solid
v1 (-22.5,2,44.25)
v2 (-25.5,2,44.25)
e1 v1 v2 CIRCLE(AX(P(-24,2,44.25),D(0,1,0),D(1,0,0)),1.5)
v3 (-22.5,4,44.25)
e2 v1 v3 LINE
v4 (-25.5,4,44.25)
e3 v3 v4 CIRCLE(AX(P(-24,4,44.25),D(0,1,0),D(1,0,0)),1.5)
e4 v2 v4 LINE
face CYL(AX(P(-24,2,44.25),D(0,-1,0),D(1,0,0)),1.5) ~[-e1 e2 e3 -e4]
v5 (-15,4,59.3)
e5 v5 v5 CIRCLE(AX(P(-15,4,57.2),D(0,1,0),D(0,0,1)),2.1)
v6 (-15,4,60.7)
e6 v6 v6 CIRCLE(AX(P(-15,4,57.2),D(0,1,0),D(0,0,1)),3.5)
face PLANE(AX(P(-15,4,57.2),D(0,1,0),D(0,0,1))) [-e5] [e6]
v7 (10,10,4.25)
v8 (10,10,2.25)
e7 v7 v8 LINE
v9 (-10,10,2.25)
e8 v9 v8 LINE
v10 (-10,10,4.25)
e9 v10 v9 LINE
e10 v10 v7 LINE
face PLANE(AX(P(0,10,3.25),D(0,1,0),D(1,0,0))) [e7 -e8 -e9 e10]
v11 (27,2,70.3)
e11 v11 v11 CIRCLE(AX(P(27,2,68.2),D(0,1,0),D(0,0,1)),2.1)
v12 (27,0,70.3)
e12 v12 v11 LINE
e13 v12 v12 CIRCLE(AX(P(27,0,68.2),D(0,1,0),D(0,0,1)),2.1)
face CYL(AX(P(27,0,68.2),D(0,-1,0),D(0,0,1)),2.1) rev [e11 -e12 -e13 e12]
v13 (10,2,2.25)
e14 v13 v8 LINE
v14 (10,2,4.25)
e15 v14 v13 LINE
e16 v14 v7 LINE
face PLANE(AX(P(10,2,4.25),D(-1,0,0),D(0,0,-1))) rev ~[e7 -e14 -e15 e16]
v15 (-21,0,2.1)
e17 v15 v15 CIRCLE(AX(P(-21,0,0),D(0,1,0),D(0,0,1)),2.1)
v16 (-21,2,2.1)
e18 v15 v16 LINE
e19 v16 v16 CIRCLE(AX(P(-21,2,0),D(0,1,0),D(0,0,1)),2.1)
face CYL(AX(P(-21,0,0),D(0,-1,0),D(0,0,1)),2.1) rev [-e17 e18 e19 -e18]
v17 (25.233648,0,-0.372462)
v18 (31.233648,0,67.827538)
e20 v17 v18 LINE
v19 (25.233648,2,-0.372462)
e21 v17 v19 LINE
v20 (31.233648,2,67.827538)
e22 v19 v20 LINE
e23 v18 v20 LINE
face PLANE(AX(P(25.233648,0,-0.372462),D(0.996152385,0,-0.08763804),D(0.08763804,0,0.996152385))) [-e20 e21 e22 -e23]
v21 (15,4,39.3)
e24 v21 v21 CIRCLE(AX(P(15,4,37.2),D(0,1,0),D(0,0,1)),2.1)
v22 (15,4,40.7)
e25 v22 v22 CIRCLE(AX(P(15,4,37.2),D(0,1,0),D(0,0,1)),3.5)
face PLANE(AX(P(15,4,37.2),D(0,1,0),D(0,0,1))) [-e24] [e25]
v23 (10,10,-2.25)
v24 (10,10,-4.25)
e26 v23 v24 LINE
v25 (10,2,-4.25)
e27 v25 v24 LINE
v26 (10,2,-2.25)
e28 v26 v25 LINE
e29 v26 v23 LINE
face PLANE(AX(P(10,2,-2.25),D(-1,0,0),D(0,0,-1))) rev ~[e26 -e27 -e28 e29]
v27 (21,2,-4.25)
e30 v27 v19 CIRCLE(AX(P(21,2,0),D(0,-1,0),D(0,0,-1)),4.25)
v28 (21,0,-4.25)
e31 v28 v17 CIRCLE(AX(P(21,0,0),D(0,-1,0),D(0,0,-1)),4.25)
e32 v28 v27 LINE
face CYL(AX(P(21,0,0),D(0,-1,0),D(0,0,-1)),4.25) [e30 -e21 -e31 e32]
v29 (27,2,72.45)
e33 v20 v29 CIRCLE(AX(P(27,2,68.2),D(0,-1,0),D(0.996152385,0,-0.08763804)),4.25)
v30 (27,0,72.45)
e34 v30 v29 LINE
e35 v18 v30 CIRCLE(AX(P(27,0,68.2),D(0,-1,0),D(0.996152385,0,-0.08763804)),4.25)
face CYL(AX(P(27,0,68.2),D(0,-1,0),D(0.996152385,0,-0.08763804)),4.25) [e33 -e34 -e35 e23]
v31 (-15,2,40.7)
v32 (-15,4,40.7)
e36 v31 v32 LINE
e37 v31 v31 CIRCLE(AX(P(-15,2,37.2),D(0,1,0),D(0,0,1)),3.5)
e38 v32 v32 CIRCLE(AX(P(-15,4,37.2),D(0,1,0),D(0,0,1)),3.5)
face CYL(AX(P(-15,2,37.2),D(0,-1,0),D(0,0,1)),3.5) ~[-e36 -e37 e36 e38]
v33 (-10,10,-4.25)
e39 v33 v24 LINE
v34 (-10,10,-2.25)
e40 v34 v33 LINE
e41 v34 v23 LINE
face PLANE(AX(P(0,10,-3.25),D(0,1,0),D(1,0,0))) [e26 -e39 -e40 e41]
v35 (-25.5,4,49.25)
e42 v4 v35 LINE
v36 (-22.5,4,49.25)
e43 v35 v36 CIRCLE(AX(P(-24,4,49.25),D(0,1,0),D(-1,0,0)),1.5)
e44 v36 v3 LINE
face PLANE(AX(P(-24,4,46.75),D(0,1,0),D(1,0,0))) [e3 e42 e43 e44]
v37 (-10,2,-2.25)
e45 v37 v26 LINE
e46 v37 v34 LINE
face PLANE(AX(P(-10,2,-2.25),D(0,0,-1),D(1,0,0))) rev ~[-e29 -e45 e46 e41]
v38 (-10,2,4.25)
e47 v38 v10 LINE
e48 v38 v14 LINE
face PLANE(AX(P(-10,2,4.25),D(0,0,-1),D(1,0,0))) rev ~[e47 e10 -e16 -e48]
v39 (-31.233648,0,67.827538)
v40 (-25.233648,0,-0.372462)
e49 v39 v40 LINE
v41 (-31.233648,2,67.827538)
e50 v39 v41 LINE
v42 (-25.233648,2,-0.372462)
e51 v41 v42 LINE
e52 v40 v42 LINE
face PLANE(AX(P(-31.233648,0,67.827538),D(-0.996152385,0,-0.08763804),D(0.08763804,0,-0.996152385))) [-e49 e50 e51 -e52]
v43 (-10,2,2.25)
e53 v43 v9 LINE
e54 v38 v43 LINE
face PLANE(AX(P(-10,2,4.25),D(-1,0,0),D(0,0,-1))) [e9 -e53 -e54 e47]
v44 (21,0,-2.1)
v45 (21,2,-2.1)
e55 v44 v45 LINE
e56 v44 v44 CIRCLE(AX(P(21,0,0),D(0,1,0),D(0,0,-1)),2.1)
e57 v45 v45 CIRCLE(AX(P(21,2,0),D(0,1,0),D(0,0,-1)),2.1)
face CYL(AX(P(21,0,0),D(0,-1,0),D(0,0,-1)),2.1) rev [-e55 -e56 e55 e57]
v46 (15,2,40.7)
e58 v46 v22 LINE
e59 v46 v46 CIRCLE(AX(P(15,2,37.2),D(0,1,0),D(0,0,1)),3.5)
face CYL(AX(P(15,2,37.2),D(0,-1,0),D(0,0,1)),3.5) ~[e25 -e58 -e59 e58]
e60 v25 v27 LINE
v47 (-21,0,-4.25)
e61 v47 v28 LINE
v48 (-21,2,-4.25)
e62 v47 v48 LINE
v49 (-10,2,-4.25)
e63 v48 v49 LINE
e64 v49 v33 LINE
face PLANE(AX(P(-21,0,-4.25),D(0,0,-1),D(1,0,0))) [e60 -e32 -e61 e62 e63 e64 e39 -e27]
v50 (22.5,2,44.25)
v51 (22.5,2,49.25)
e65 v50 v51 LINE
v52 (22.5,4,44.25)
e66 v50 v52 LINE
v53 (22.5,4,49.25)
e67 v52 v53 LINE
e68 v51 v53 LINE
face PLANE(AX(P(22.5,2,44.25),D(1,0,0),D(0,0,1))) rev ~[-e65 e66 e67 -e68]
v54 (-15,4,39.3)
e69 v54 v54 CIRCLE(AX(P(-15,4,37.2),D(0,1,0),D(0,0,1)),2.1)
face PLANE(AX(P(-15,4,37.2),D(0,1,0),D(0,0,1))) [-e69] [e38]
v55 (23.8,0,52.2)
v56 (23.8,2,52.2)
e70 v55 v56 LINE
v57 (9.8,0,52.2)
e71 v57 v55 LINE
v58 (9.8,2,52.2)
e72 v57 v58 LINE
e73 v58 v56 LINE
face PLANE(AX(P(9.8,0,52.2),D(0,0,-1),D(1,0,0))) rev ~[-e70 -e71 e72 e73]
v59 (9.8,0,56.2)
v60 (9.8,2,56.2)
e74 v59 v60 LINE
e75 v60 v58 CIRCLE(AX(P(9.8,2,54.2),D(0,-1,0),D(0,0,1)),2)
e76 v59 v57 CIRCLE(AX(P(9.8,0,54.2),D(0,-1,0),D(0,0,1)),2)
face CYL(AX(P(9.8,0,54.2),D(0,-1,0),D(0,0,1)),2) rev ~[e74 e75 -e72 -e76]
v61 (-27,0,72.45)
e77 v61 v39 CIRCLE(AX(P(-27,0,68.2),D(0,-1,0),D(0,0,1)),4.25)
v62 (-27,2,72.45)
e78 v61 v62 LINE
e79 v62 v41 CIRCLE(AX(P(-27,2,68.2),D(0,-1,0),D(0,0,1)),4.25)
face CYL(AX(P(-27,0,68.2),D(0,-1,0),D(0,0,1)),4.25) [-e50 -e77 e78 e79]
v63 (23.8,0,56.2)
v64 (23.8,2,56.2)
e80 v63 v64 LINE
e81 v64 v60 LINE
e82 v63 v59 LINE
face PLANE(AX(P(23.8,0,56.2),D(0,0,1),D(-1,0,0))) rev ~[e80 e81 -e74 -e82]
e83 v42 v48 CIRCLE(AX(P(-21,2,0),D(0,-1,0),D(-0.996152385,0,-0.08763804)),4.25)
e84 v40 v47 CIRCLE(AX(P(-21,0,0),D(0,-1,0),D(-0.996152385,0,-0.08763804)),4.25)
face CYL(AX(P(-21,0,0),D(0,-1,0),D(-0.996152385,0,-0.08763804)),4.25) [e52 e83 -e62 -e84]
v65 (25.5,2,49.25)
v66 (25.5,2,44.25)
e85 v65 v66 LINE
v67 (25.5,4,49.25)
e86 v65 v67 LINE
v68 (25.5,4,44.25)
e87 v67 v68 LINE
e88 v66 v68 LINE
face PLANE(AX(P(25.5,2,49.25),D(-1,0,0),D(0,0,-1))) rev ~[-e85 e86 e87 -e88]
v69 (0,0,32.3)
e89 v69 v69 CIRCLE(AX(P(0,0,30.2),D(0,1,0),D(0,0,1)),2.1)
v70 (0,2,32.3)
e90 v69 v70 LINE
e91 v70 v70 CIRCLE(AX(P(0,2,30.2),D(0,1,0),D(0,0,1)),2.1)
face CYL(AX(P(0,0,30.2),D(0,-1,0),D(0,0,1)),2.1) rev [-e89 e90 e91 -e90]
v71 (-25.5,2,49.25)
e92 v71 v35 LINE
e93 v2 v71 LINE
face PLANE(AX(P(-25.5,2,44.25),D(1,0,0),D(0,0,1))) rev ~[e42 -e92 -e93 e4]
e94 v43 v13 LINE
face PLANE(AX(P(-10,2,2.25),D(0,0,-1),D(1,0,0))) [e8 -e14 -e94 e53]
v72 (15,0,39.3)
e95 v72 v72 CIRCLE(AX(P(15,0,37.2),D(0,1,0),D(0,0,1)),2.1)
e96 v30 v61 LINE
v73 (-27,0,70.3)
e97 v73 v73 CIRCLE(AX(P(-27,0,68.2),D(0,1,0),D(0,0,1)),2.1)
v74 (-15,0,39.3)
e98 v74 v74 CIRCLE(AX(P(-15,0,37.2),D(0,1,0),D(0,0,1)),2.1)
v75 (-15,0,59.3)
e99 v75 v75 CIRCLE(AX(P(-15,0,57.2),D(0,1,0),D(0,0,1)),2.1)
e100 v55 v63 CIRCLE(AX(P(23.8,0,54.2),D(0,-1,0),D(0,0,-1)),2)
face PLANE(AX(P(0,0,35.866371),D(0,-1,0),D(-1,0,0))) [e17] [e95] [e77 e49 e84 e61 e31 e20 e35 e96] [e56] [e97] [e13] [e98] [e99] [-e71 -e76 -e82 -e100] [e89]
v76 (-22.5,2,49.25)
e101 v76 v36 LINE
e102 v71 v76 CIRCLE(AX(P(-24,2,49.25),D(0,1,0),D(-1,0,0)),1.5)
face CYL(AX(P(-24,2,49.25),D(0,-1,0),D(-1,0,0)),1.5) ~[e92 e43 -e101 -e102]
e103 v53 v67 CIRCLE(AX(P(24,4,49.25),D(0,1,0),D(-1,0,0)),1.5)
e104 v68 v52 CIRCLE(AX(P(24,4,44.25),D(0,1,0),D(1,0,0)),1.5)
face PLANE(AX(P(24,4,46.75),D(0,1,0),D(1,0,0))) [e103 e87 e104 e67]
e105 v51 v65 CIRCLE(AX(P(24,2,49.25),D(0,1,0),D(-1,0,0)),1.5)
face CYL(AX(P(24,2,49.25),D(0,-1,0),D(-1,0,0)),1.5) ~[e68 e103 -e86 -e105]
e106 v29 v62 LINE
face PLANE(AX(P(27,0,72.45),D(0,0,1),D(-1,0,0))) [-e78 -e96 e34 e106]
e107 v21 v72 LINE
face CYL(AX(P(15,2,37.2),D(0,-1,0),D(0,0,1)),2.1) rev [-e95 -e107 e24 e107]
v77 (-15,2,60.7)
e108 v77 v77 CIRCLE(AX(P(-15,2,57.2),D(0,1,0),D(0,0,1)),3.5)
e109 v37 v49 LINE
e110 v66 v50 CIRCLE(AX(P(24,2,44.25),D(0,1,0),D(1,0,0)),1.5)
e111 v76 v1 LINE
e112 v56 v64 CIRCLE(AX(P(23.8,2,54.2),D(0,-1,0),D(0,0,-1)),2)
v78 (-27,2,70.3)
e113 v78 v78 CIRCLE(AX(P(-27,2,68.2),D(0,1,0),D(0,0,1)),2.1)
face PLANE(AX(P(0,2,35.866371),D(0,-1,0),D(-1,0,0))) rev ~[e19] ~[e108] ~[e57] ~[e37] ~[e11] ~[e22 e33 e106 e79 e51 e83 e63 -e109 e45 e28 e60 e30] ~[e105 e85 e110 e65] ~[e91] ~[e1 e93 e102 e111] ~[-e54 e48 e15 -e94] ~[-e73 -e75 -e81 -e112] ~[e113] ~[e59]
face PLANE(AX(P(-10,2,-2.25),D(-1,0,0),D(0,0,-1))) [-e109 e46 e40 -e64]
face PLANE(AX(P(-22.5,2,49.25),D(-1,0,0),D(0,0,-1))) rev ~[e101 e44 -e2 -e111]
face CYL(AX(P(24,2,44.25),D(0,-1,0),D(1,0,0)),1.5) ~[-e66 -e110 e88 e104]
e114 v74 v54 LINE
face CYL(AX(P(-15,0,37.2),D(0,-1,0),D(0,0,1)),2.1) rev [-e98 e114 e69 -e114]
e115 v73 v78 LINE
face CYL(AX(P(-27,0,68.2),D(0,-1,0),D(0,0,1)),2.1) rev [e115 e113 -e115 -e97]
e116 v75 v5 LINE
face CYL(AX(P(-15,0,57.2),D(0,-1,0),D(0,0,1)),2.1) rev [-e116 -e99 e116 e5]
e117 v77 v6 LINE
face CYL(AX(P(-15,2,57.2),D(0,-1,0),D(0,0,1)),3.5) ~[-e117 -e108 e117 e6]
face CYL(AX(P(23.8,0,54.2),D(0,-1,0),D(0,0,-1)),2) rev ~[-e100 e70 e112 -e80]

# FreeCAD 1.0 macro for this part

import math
import FreeCAD as App
import Part
import Sketcher

V = App.Vector
Q = App.Units.Quantity

doc = App.newDocument("Part")
body = doc.addObject("PartDesign::Body", "Body")

# Sketch on XZ plane
sketch1 = body.newObject("Sketcher::SketchObject", "Sketch")
sketch1.AttachmentSupport = (doc.getObject("XZ_Plane"), [""])
sketch1.MapMode = "FlatFace"
sketch1.addGeometry(Part.LineSegment(V(21, -4.25, 0), V(-21, -4.25, 0)), False)
sketch1.addGeometry(Part.ArcOfCircle(Part.Circle(V(-21, 0, 0), V(0, 0, 1), 4.25), math.radians(-174.97226), math.radians(-90)), False)
sketch1.addGeometry(Part.LineSegment(V(-25.233648, -0.372462, 0), V(-31.233648, 67.827538, 0)), False)
sketch1.addGeometry(Part.ArcOfCircle(Part.Circle(V(-27, 68.2, 0), V(0, 0, 1), 4.25), math.radians(90), math.radians(185.02774)), False)
sketch1.addGeometry(Part.LineSegment(V(-27, 72.45, 0), V(27, 72.45, 0)), False)
sketch1.addGeometry(Part.ArcOfCircle(Part.Circle(V(27, 68.2, 0), V(0, 0, 1), 4.25), math.radians(-5.02774), math.radians(90)), False)
sketch1.addGeometry(Part.LineSegment(V(31.233648, 67.827538, 0), V(25.233648, -0.372462, 0)), False)
sketch1.addGeometry(Part.ArcOfCircle(Part.Circle(V(21, 0, 0), V(0, 0, 1), 4.25), math.radians(-90), math.radians(-5.02774)), False)
sketch1.addGeometry(Part.Circle(V(27, 68.2, 0), V(0, 0, 1), 2.1), False)
sketch1.addGeometry(Part.LineSegment(V(9.8, 52.2, 0), V(23.8, 52.2, 0)), False)
sketch1.addGeometry(Part.ArcOfCircle(Part.Circle(V(23.8, 54.2, 0), V(0, 0, 1), 2), math.radians(-90), math.radians(90)), False)
sketch1.addGeometry(Part.LineSegment(V(23.8, 56.2, 0), V(9.8, 56.2, 0)), False)
sketch1.addGeometry(Part.ArcOfCircle(Part.Circle(V(9.8, 54.2, 0), V(0, 0, 1), 2), math.radians(90), math.radians(270)), False)
sketch1.addGeometry(Part.Circle(V(15, 37.2, 0), V(0, 0, 1), 2.1), False)
sketch1.addGeometry(Part.Circle(V(-27, 68.2, 0), V(0, 0, 1), 2.1), False)
sketch1.addGeometry(Part.Circle(V(-15, 57.2, 0), V(0, 0, 1), 2.1), False)
sketch1.addGeometry(Part.Circle(V(-15, 37.2, 0), V(0, 0, 1), 2.1), False)
sketch1.addGeometry(Part.Circle(V(21, 0, 0), V(0, 0, 1), 2.1), False)
sketch1.addGeometry(Part.Circle(V(0, 30.2, 0), V(0, 0, 1), 2.1), False)
sketch1.addGeometry(Part.Circle(V(-21, 0, 0), V(0, 0, 1), 2.1), False)
sketch1.addConstraint(Sketcher.Constraint("Tangent", 0, 2, 1, 2))
sketch1.addConstraint(Sketcher.Constraint("Tangent", 1, 1, 2, 1))
sketch1.addConstraint(Sketcher.Constraint("Tangent", 2, 2, 3, 2))
sketch1.addConstraint(Sketcher.Constraint("Tangent", 3, 1, 4, 1))
sketch1.addConstraint(Sketcher.Constraint("Tangent", 4, 2, 5, 2))
sketch1.addConstraint(Sketcher.Constraint("Tangent", 5, 1, 6, 1))
sketch1.addConstraint(Sketcher.Constraint("Tangent", 6, 2, 7, 2))
sketch1.addConstraint(Sketcher.Constraint("Tangent", 7, 1, 0, 1))
sketch1.addConstraint(Sketcher.Constraint("Tangent", 9, 2, 10, 1))
sketch1.addConstraint(Sketcher.Constraint("Tangent", 10, 2, 11, 1))
sketch1.addConstraint(Sketcher.Constraint("Tangent", 11, 2, 12, 1))
sketch1.addConstraint(Sketcher.Constraint("Tangent", 12, 2, 9, 1))
sketch1.addConstraint(Sketcher.Constraint("Horizontal", 0))
sketch1.addConstraint(Sketcher.Constraint("Horizontal", 4))
sketch1.addConstraint(Sketcher.Constraint("Horizontal", 9))
sketch1.addConstraint(Sketcher.Constraint("Horizontal", 11))
sketch1.addConstraint(Sketcher.Constraint("Coincident", 8, 3, 5, 3))
sketch1.addConstraint(Sketcher.Constraint("Coincident", 14, 3, 3, 3))
sketch1.addConstraint(Sketcher.Constraint("Coincident", 17, 3, 7, 3))
sketch1.addConstraint(Sketcher.Constraint("Coincident", 19, 3, 1, 3))
sketch1.addConstraint(Sketcher.Constraint("Equal", 1, 3))
sketch1.addConstraint(Sketcher.Constraint("Equal", 3, 5))
sketch1.addConstraint(Sketcher.Constraint("Equal", 5, 7))
sketch1.addConstraint(Sketcher.Constraint("Equal", 8, 13))
sketch1.addConstraint(Sketcher.Constraint("Equal", 13, 14))
sketch1.addConstraint(Sketcher.Constraint("Equal", 14, 15))
sketch1.addConstraint(Sketcher.Constraint("Equal", 15, 16))
sketch1.addConstraint(Sketcher.Constraint("Equal", 16, 17))
sketch1.addConstraint(Sketcher.Constraint("Equal", 17, 18))
sketch1.addConstraint(Sketcher.Constraint("Equal", 18, 19))
sketch1.addConstraint(Sketcher.Constraint("Symmetric", 1, 3, 7, 3, -1, 1))
sketch1.addConstraint(Sketcher.Constraint("Symmetric", 13, 3, 16, 3, -2))
sketch1.addConstraint(Sketcher.Constraint("PointOnObject", 18, 3, -2))
sketch1.addConstraint(Sketcher.Constraint("Horizontal", 2, 2, 5, 1))
sketch1.addConstraint(Sketcher.Constraint("Vertical", 15, 3, 16, 3))
sketch1.addConstraint(Sketcher.Constraint("Radius", 10, Q("2 mm")))
sketch1.addConstraint(Sketcher.Constraint("Diameter", 8, Q("4.2 mm")))
sketch1.addConstraint(Sketcher.Constraint("DistanceX", 0, 2, 0, 1, Q("42 mm")))
sketch1.addConstraint(Sketcher.Constraint("DistanceX", 4, 1, 4, 2, Q("54 mm")))
sketch1.addConstraint(Sketcher.Constraint("DistanceX", 9, 1, 9, 2, Q("14 mm")))
sketch1.addConstraint(Sketcher.Constraint("Radius", 1, Q("4.25 mm")))
sketch1.addConstraint(Sketcher.Constraint("DistanceX", -1, 1, 13, 3, Q("15 mm")))
sketch1.addConstraint(Sketcher.Constraint("DistanceY", 10, 3, 5, 3, Q("14 mm")))
sketch1.addConstraint(Sketcher.Constraint("DistanceY", 13, 3, 12, 3, Q("17 mm")))
sketch1.addConstraint(Sketcher.Constraint("DistanceY", 15, 3, 3, 3, Q("11 mm")))
sketch1.addConstraint(Sketcher.Constraint("DistanceY", 18, 3, 13, 3, Q("7 mm")))
sketch1.addConstraint(Sketcher.Constraint("DistanceY", -1, 1, 3, 3, Q("68.2 mm")))
sketch1.addConstraint(Sketcher.Constraint("DistanceX", -1, 1, 10, 3, Q("23.8 mm")))
pad1 = body.newObject("PartDesign::Pad", "Pad")
pad1.Profile = sketch1
pad1.Length = 2
pad1.Reversed = True

# Sketch on XZ plane
sketch2 = body.newObject("Sketcher::SketchObject", "Sketch001")
sketch2.AttachmentSupport = (doc.getObject("XZ_Plane"), [""])
sketch2.MapMode = "FlatFace"
sketch2.AttachmentOffset = App.Placement(V(0, 0, -2), App.Rotation())
sketch2.addGeometry(Part.LineSegment(V(-10, 2.25, 0), V(-10, 4.25, 0)), False)
sketch2.addGeometry(Part.LineSegment(V(-10, 4.25, 0), V(10, 4.25, 0)), False)
sketch2.addGeometry(Part.LineSegment(V(10, 4.25, 0), V(10, 2.25, 0)), False)
sketch2.addGeometry(Part.LineSegment(V(10, 2.25, 0), V(-10, 2.25, 0)), False)
sketch2.addGeometry(Part.LineSegment(V(-10, -4.25, 0), V(-10, -2.25, 0)), False)
sketch2.addGeometry(Part.LineSegment(V(-10, -2.25, 0), V(10, -2.25, 0)), False)
sketch2.addGeometry(Part.LineSegment(V(10, -2.25, 0), V(10, -4.25, 0)), False)
sketch2.addGeometry(Part.LineSegment(V(10, -4.25, 0), V(-10, -4.25, 0)), False)
sketch2.addConstraint(Sketcher.Constraint("Coincident", 0, 2, 1, 1))
sketch2.addConstraint(Sketcher.Constraint("Coincident", 1, 2, 2, 1))
sketch2.addConstraint(Sketcher.Constraint("Coincident", 2, 2, 3, 1))
sketch2.addConstraint(Sketcher.Constraint("Coincident", 3, 2, 0, 1))
sketch2.addConstraint(Sketcher.Constraint("Coincident", 4, 2, 5, 1))
sketch2.addConstraint(Sketcher.Constraint("Coincident", 5, 2, 6, 1))
sketch2.addConstraint(Sketcher.Constraint("Coincident", 6, 2, 7, 1))
sketch2.addConstraint(Sketcher.Constraint("Coincident", 7, 2, 4, 1))
sketch2.addConstraint(Sketcher.Constraint("Vertical", 0))
sketch2.addConstraint(Sketcher.Constraint("Horizontal", 1))
sketch2.addConstraint(Sketcher.Constraint("Vertical", 2))
sketch2.addConstraint(Sketcher.Constraint("Horizontal", 3))
sketch2.addConstraint(Sketcher.Constraint("Vertical", 4))
sketch2.addConstraint(Sketcher.Constraint("Horizontal", 5))
sketch2.addConstraint(Sketcher.Constraint("Vertical", 6))
sketch2.addConstraint(Sketcher.Constraint("Horizontal", 7))
sketch2.addConstraint(Sketcher.Constraint("Symmetric", 2, 2, 4, 2, -1, 1))
sketch2.addConstraint(Sketcher.Constraint("Symmetric", 0, 2, 6, 2, -1, 1))
sketch2.addConstraint(Sketcher.Constraint("Vertical", 3, 2, 4, 2))
sketch2.addConstraint(Sketcher.Constraint("DistanceX", 1, 1, 1, 2, Q("20 mm")))
sketch2.addConstraint(Sketcher.Constraint("DistanceY", 0, 1, 0, 2, Q("2 mm")))
sketch2.addConstraint(Sketcher.Constraint("DistanceY", 4, 2, 3, 2, Q("4.5 mm")))
pad2 = body.newObject("PartDesign::Pad", "Pad001")
pad2.Profile = sketch2
pad2.Length = 8
pad2.Reversed = True

# Sketch on XZ plane
sketch3 = body.newObject("Sketcher::SketchObject", "Sketch002")
sketch3.AttachmentSupport = (doc.getObject("XZ_Plane"), [""])
sketch3.MapMode = "FlatFace"
sketch3.AttachmentOffset = App.Placement(V(0, 0, -2), App.Rotation())
sketch3.addGeometry(Part.Circle(V(15, 37.2, 0), V(0, 0, 1), 3.5), False)
sketch3.addGeometry(Part.Circle(V(15, 37.2, 0), V(0, 0, 1), 2.1), False)
sketch3.addGeometry(Part.Circle(V(-15, 37.2, 0), V(0, 0, 1), 3.5), False)
sketch3.addGeometry(Part.Circle(V(-15, 37.2, 0), V(0, 0, 1), 2.1), False)
sketch3.addGeometry(Part.Circle(V(-15, 57.2, 0), V(0, 0, 1), 3.5), False)
sketch3.addGeometry(Part.Circle(V(-15, 57.2, 0), V(0, 0, 1), 2.1), False)
sketch3.addGeometry(Part.LineSegment(V(-25.5, 44.25, 0), V(-25.5, 49.25, 0)), False)
sketch3.addGeometry(Part.ArcOfCircle(Part.Circle(V(-24, 49.25, 0), V(0, 0, 1), 1.5), math.radians(0), math.radians(180)), False)
sketch3.addGeometry(Part.LineSegment(V(-22.5, 49.25, 0), V(-22.5, 44.25, 0)), False)
sketch3.addGeometry(Part.ArcOfCircle(Part.Circle(V(-24, 44.25, 0), V(0, 0, 1), 1.5), math.radians(180), math.radians(360)), False)
sketch3.addGeometry(Part.LineSegment(V(22.5, 44.25, 0), V(22.5, 49.25, 0)), False)
sketch3.addGeometry(Part.ArcOfCircle(Part.Circle(V(24, 49.25, 0), V(0, 0, 1), 1.5), math.radians(0), math.radians(180)), False)
sketch3.addGeometry(Part.LineSegment(V(25.5, 49.25, 0), V(25.5, 44.25, 0)), False)
sketch3.addGeometry(Part.ArcOfCircle(Part.Circle(V(24, 44.25, 0), V(0, 0, 1), 1.5), math.radians(180), math.radians(360)), False)
sketch3.addConstraint(Sketcher.Constraint("Tangent", 6, 2, 7, 2))
sketch3.addConstraint(Sketcher.Constraint("Tangent", 7, 1, 8, 1))
sketch3.addConstraint(Sketcher.Constraint("Tangent", 8, 2, 9, 2))
sketch3.addConstraint(Sketcher.Constraint("Tangent", 9, 1, 6, 1))
sketch3.addConstraint(Sketcher.Constraint("Tangent", 10, 2, 11, 2))
sketch3.addConstraint(Sketcher.Constraint("Tangent", 11, 1, 12, 1))
sketch3.addConstraint(Sketcher.Constraint("Tangent", 12, 2, 13, 2))
sketch3.addConstraint(Sketcher.Constraint("Tangent", 13, 1, 10, 1))
sketch3.addConstraint(Sketcher.Constraint("Vertical", 6))
sketch3.addConstraint(Sketcher.Constraint("Vertical", 8))
sketch3.addConstraint(Sketcher.Constraint("Vertical", 10))
sketch3.addConstraint(Sketcher.Constraint("Vertical", 12))
sketch3.addConstraint(Sketcher.Constraint("Coincident", 1, 3, 0, 3))
sketch3.addConstraint(Sketcher.Constraint("Coincident", 3, 3, 2, 3))
sketch3.addConstraint(Sketcher.Constraint("Coincident", 5, 3, 4, 3))
sketch3.addConstraint(Sketcher.Constraint("Equal", 0, 2))
sketch3.addConstraint(Sketcher.Constraint("Equal", 1, 3))
sketch3.addConstraint(Sketcher.Constraint("Equal", 2, 4))
sketch3.addConstraint(Sketcher.Constraint("Equal", 3, 5))
sketch3.addConstraint(Sketcher.Constraint("Equal", 9, 11))
sketch3.addConstraint(Sketcher.Constraint("Symmetric", 0, 3, 2, 3, -2))
sketch3.addConstraint(Sketcher.Constraint("Symmetric", 7, 3, 11, 3, -2))
sketch3.addConstraint(Sketcher.Constraint("Horizontal", 9, 3, 13, 3))
sketch3.addConstraint(Sketcher.Constraint("Vertical", 3, 3, 4, 3))
sketch3.addConstraint(Sketcher.Constraint("Diameter", 0, Q("7 mm")))
sketch3.addConstraint(Sketcher.Constraint("Diameter", 1, Q("4.2 mm")))
sketch3.addConstraint(Sketcher.Constraint("Radius", 7, Q("1.5 mm")))
sketch3.addConstraint(Sketcher.Constraint("DistanceY", 6, 1, 6, 2, Q("5 mm")))
sketch3.addConstraint(Sketcher.Constraint("DistanceX", -1, 1, 0, 3, Q("15 mm")))
sketch3.addConstraint(Sketcher.Constraint("DistanceX", 7, 3, -1, 1, Q("24 mm")))
sketch3.addConstraint(Sketcher.Constraint("DistanceY", 2, 3, 4, 3, Q("20 mm")))
sketch3.addConstraint(Sketcher.Constraint("DistanceY", -1, 1, 0, 3, Q("37.2 mm")))
sketch3.addConstraint(Sketcher.Constraint("DistanceY", -1, 1, 7, 3, Q("49.25 mm")))
pad3 = body.newObject("PartDesign::Pad", "Pad002")
pad3.Profile = sketch3
pad3.Length = 2
pad3.Reversed = True

doc.recompute()
